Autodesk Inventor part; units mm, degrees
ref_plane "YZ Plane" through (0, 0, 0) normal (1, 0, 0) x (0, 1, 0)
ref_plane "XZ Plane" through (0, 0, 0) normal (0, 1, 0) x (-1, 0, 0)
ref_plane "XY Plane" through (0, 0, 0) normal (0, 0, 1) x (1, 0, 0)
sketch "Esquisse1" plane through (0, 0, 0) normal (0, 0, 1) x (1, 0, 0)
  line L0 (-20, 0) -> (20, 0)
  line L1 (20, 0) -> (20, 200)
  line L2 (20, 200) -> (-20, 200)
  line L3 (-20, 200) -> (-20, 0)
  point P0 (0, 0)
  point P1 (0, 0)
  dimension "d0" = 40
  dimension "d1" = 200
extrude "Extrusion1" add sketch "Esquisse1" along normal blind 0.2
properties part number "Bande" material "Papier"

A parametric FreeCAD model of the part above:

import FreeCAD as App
import Part
import Sketcher

V = App.Vector

doc = App.newDocument("Part")
body = doc.addObject("PartDesign::Body", "Body")

# Sketch on XY plane
sketch1 = doc.addObject("Sketcher::SketchObject", "Sketch")
body.addObject(sketch1)
sketch1.AttachmentSupport = (doc.XY_Plane, [""])
sketch1.MapMode = "FlatFace"
sketch1.addGeometry(Part.LineSegment(V(-20, 200, 0), V(-20, 0, 0)), False)
sketch1.addGeometry(Part.LineSegment(V(-20, 0, 0), V(20, 0, 0)), False)
sketch1.addGeometry(Part.LineSegment(V(20, 0, 0), V(20, 200, 0)), False)
sketch1.addGeometry(Part.LineSegment(V(20, 200, 0), V(-20, 200, 0)), False)
sketch1.addConstraint(Sketcher.Constraint("Coincident", 0, 2, 1, 1))
sketch1.addConstraint(Sketcher.Constraint("Coincident", 1, 2, 2, 1))
sketch1.addConstraint(Sketcher.Constraint("Coincident", 2, 2, 3, 1))
sketch1.addConstraint(Sketcher.Constraint("Coincident", 3, 2, 0, 1))
sketch1.addConstraint(Sketcher.Constraint("Vertical", 0))
sketch1.addConstraint(Sketcher.Constraint("Horizontal", 1))
sketch1.addConstraint(Sketcher.Constraint("Vertical", 2))
sketch1.addConstraint(Sketcher.Constraint("Horizontal", 3))
sketch1.addConstraint(Sketcher.Constraint("Symmetric", 0, 2, 1, 2, -1, 1))
sketch1.addConstraint(Sketcher.Constraint("DistanceX", 1, 1, 1, 2, 40.0))
sketch1.addConstraint(Sketcher.Constraint("DistanceY", 0, 2, 0, 1, 200.0))
pad1 = doc.addObject("PartDesign::Pad", "Pad")
body.addObject(pad1)
pad1.Profile = sketch1
pad1.Length = 0.2

doc.recompute()
